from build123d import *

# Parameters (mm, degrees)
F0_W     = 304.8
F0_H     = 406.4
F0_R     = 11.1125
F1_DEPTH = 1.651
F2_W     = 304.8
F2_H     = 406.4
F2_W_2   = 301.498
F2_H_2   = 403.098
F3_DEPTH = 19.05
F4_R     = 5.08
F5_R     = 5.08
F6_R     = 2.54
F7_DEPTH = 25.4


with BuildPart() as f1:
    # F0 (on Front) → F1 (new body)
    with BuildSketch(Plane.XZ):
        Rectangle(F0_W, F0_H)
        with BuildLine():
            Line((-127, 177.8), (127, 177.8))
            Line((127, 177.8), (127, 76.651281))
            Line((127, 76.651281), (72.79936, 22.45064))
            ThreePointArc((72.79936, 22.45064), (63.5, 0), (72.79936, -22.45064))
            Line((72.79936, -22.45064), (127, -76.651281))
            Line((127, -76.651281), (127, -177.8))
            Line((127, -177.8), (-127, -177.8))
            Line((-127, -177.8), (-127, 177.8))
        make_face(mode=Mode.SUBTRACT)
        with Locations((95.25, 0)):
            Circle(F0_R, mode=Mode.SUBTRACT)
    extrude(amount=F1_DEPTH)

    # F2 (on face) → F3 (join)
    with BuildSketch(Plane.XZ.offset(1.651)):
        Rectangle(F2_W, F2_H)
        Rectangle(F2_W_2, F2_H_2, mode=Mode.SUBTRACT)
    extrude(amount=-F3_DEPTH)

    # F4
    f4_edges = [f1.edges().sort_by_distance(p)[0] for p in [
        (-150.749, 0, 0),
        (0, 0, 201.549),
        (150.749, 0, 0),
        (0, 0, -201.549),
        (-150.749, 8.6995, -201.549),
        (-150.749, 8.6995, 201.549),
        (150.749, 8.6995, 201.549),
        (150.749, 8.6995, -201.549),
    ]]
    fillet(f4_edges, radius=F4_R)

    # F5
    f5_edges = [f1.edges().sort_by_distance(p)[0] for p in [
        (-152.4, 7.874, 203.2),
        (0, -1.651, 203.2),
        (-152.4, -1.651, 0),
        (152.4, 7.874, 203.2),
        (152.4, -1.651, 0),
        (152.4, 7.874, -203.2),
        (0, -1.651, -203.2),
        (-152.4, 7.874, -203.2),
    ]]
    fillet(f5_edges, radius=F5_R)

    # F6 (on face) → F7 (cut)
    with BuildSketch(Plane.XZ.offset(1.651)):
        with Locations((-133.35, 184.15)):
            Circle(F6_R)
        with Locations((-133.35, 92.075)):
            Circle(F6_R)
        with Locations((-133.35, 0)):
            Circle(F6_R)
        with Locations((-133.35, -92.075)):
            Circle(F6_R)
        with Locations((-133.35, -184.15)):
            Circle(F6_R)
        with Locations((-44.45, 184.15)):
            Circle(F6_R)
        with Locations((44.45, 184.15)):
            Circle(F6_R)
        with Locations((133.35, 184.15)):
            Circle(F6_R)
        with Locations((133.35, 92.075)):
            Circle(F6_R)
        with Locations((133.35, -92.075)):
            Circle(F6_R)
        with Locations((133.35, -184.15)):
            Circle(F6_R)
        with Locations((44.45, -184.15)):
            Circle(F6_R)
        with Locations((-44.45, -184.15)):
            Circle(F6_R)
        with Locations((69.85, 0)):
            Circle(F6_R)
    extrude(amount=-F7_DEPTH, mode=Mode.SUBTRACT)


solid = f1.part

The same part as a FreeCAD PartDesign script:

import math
import FreeCAD as App
import Part
import Sketcher
from FreeCAD import Vector
Q = App.Units.Quantity


def edges_at(feature, points):
    """Names of the edges that pass closest to the given points."""
    edges = feature.Shape.Edges
    near = lambda p: min(range(len(edges)), key=lambda i: edges[i].distToShape(Part.Vertex(*p))[0])
    return sorted({f"Edge{near(p) + 1}" for p in points})

doc = App.newDocument("Part")
body = doc.addObject("PartDesign::Body", "Body")

# Sketch on XZ plane
sketch1 = doc.addObject("Sketcher::SketchObject", "Sketch")
body.addObject(sketch1)
sketch1.AttachmentSupport = (doc.XZ_Plane, [""])
sketch1.MapMode = "FlatFace"
sketch1.addGeometry([
    Part.LineSegment(Vector(-152, 203, 0), Vector(-152, -203, 0)),  # 0
    Part.LineSegment(Vector(-152, -203, 0), Vector(152, -203, 0)),  # 1
    Part.LineSegment(Vector(152, -203, 0), Vector(152, 203, 0)),  # 2
    Part.LineSegment(Vector(152, 203, 0), Vector(-152, 203, 0)),  # 3
    Part.LineSegment(Vector(-127, -178, 0), Vector(-127, 178, 0)),  # 4
    Part.LineSegment(Vector(-127, 178, 0), Vector(127, 178, 0)),  # 5
    Part.LineSegment(Vector(127, 178, 0), Vector(127, 77, 0)),  # 6
    Part.LineSegment(Vector(127, 77, 0), Vector(73, 22, 0)),  # 7
    Part.ArcOfCircle(Part.Circle(Vector(95, 0, 0), Vector(0, 0, 1), 32), math.radians(135), math.radians(225)),  # 8
    Part.LineSegment(Vector(73, -22, 0), Vector(127, -77, 0)),  # 9
    Part.LineSegment(Vector(127, -77, 0), Vector(127, -178, 0)),  # 10
    Part.LineSegment(Vector(127, -178, 0), Vector(-127, -178, 0)),  # 11
    Part.Circle(Vector(95, 0, 0), Vector(0, 0, 1), 11),  # 12
], False)
sketch1.addConstraint([
    Sketcher.Constraint("Coincident", 0, 2, 1, 1),
    Sketcher.Constraint("Coincident", 1, 2, 2, 1),
    Sketcher.Constraint("Coincident", 2, 2, 3, 1),
    Sketcher.Constraint("Coincident", 3, 2, 0, 1),
    Sketcher.Constraint("Coincident", 4, 2, 5, 1),
    Sketcher.Constraint("Coincident", 5, 2, 6, 1),
    Sketcher.Constraint("Coincident", 6, 2, 7, 1),
    Sketcher.Constraint("Tangent", 7, 2, 8, 1),
    Sketcher.Constraint("Tangent", 8, 2, 9, 1),
    Sketcher.Constraint("Coincident", 9, 2, 10, 1),
    Sketcher.Constraint("Coincident", 10, 2, 11, 1),
    Sketcher.Constraint("Coincident", 11, 2, 4, 1),
    Sketcher.Constraint("Vertical", 0),
    Sketcher.Constraint("Horizontal", 1),
    Sketcher.Constraint("Vertical", 2),
    Sketcher.Constraint("Horizontal", 3),
    Sketcher.Constraint("Vertical", 4),
    Sketcher.Constraint("Horizontal", 5),
    Sketcher.Constraint("Vertical", 6),
    Sketcher.Constraint("Vertical", 10),
    Sketcher.Constraint("Horizontal", 11),
    Sketcher.Constraint("Coincident", 12, 3, 8, 3),
    Sketcher.Constraint("Symmetric", 0, 2, 2, 2, -1, 1),
    Sketcher.Constraint("Symmetric", 4, 2, 10, 2, -1, 1),
    Sketcher.Constraint("Symmetric", 7, 2, 8, 2, -1),
    Sketcher.Constraint("Perpendicular", 7, 9),
    Sketcher.Constraint("Vertical", 6, 2, 9, 2),
    Sketcher.Constraint("DistanceX", 1, 1, 1, 2, Q("12 in")),
    Sketcher.Constraint("DistanceX", 5, 1, 5, 2, Q("10 in")),
    Sketcher.Constraint("DistanceY", 0, 2, 0, 1, Q("16 in")),
    Sketcher.Constraint("DistanceY", 4, 1, 4, 2, Q("14 in")),
    Sketcher.Constraint("Radius", 8, Q("1.2499999 in")),
    Sketcher.Constraint("Diameter", 12, Q("0.875 in")),
    Sketcher.Constraint("DistanceX", -1, 1, 8, 3, Q("3.7499999 in")),
])
pad1 = doc.addObject("PartDesign::Pad", "Pad")
body.addObject(pad1)
pad1.Profile = sketch1
pad1.Length = Q("0.065 in")

# Sketch on XZ plane
sketch2 = doc.addObject("Sketcher::SketchObject", "Sketch001")
body.addObject(sketch2)
sketch2.AttachmentSupport = (doc.XZ_Plane, [""])
sketch2.MapMode = "FlatFace"
sketch2.AttachmentOffset = App.Placement(Vector(0, 0, 0.065 * 25.4), App.Rotation())
sketch2.addGeometry([
    Part.LineSegment(Vector(-152, 203, 0), Vector(-152, -203, 0)),  # 0
    Part.LineSegment(Vector(-152, -203, 0), Vector(152, -203, 0)),  # 1
    Part.LineSegment(Vector(152, -203, 0), Vector(152, 203, 0)),  # 2
    Part.LineSegment(Vector(152, 203, 0), Vector(-152, 203, 0)),  # 3
    Part.LineSegment(Vector(151, -202, 0), Vector(-151, -202, 0)),  # 4
    Part.LineSegment(Vector(-151, -202, 0), Vector(-151, 202, 0)),  # 5
    Part.LineSegment(Vector(-151, 202, 0), Vector(151, 202, 0)),  # 6
    Part.LineSegment(Vector(151, 202, 0), Vector(151, -202, 0)),  # 7
], False)
sketch2.addConstraint([
    Sketcher.Constraint("Coincident", 0, 2, 1, 1),
    Sketcher.Constraint("Coincident", 1, 2, 2, 1),
    Sketcher.Constraint("Coincident", 2, 2, 3, 1),
    Sketcher.Constraint("Coincident", 3, 2, 0, 1),
    Sketcher.Constraint("Coincident", 4, 2, 5, 1),
    Sketcher.Constraint("Coincident", 5, 2, 6, 1),
    Sketcher.Constraint("Coincident", 6, 2, 7, 1),
    Sketcher.Constraint("Coincident", 7, 2, 4, 1),
    Sketcher.Constraint("Vertical", 0),
    Sketcher.Constraint("Horizontal", 1),
    Sketcher.Constraint("Vertical", 2),
    Sketcher.Constraint("Horizontal", 3),
    Sketcher.Constraint("Horizontal", 4),
    Sketcher.Constraint("Vertical", 5),
    Sketcher.Constraint("Horizontal", 6),
    Sketcher.Constraint("Vertical", 7),
    Sketcher.Constraint("Symmetric", 0, 2, 2, 2, -1, 1),
    Sketcher.Constraint("Symmetric", 4, 2, 6, 2, -1, 1),
    Sketcher.Constraint("DistanceX", 1, 1, 1, 2, Q("12 in")),
    Sketcher.Constraint("DistanceY", 0, 2, 0, 1, Q("16 in")),
    Sketcher.Constraint("DistanceX", 4, 2, 4, 1, Q("11.87 in")),
    Sketcher.Constraint("DistanceY", 5, 1, 5, 2, Q("15.87 in")),
])
pad2 = doc.addObject("PartDesign::Pad", "Pad001")
body.addObject(pad2)
pad2.Profile = sketch2
pad2.Length = Q("0.75 in")
pad2.Reversed = True
doc.recompute()

fillet = doc.addObject("PartDesign::Fillet", "Fillet")
body.addObject(fillet)
fillet.Base = (pad2, edges_at(pad2, [
    (-150.749, 0, 0),
    (0, 0, 201.549),
    (150.749, 0, 0),
    (0, 0, -201.549),
    (-150.749, 8.7, -201.549),
    (-150.749, 8.7, 201.549),
    (150.749, 8.7, 201.549),
    (150.749, 8.7, -201.549),
]))
fillet.Radius = Q("0.2 in")
doc.recompute()

fillet2 = doc.addObject("PartDesign::Fillet", "Fillet001")
body.addObject(fillet2)
fillet2.Base = (fillet, edges_at(fillet, [
    (-152.4, 7.874, 203.2),
    (0, -1.651, 203.2),
    (-152.4, -1.651, 0),
    (152.4, 7.874, 203.2),
    (152.4, -1.651, 0),
    (152.4, 7.874, -203.2),
    (0, -1.651, -203.2),
    (-152.4, 7.874, -203.2),
]))
fillet2.Radius = Q("0.2 in")

# Sketch on XZ plane
sketch3 = doc.addObject("Sketcher::SketchObject", "Sketch002")
body.addObject(sketch3)
sketch3.AttachmentSupport = (doc.XZ_Plane, [""])
sketch3.MapMode = "FlatFace"
sketch3.AttachmentOffset = App.Placement(Vector(0, 0, 0.065 * 25.4), App.Rotation())
sketch3.addGeometry([
    Part.Circle(Vector(-133.3, 184.2, 0), Vector(0, 0, 1), 2.5),  # 0
    Part.Circle(Vector(-133.3, 92.1, 0), Vector(0, 0, 1), 2.5),  # 1
    Part.Circle(Vector(-133.3, 0, 0), Vector(0, 0, 1), 2.5),  # 2
    Part.Circle(Vector(-133.3, -92.1, 0), Vector(0, 0, 1), 2.5),  # 3
    Part.Circle(Vector(-133.3, -184.2, 0), Vector(0, 0, 1), 2.5),  # 4
    Part.Circle(Vector(-44.5, 184.2, 0), Vector(0, 0, 1), 2.5),  # 5
    Part.Circle(Vector(44.5, 184.2, 0), Vector(0, 0, 1), 2.5),  # 6
    Part.Circle(Vector(133.3, 184.2, 0), Vector(0, 0, 1), 2.5),  # 7
    Part.Circle(Vector(133.3, 92.1, 0), Vector(0, 0, 1), 2.5),  # 8
    Part.Circle(Vector(133.3, -92.1, 0), Vector(0, 0, 1), 2.5),  # 9
    Part.Circle(Vector(133.3, -184.2, 0), Vector(0, 0, 1), 2.5),  # 10
    Part.Circle(Vector(44.5, -184.2, 0), Vector(0, 0, 1), 2.5),  # 11
    Part.Circle(Vector(-44.5, -184.2, 0), Vector(0, 0, 1), 2.5),  # 12
    Part.Circle(Vector(69.8, 0, 0), Vector(0, 0, 1), 2.5),  # 13
], False)
sketch3.addConstraint([
    Sketcher.Constraint("Equal", 0, 1),
    Sketcher.Constraint("Equal", 1, 2),
    Sketcher.Constraint("Equal", 2, 3),
    Sketcher.Constraint("Equal", 3, 4),
    Sketcher.Constraint("Equal", 4, 5),
    Sketcher.Constraint("Equal", 5, 6),
    Sketcher.Constraint("Equal", 6, 7),
    Sketcher.Constraint("Equal", 7, 8),
    Sketcher.Constraint("Equal", 8, 9),
    Sketcher.Constraint("Equal", 9, 10),
    Sketcher.Constraint("Equal", 10, 11),
    Sketcher.Constraint("Equal", 11, 12),
    Sketcher.Constraint("Equal", 12, 13),
    Sketcher.Constraint("Symmetric", 4, 3, 7, 3, -1, 1),
    Sketcher.Constraint("Symmetric", 3, 3, 8, 3, -1, 1),
    Sketcher.Constraint("Symmetric", 1, 3, 9, 3, -1, 1),
    Sketcher.Constraint("Symmetric", 0, 3, 10, 3, -1, 1),
    Sketcher.Constraint("Symmetric", 5, 3, 11, 3, -1, 1),
    Sketcher.Constraint("Symmetric", 6, 3, 12, 3, -1, 1),
    Sketcher.Constraint("Symmetric", 5, 3, 6, 3, -2),
    Sketcher.Constraint("Symmetric", 0, 3, 7, 3, -2),
    Sketcher.Constraint("Symmetric", 1, 3, 8, 3, -2),
    Sketcher.Constraint("PointOnObject", 2, 3, -1),
    Sketcher.Constraint("PointOnObject", 13, 3, -1),
    Sketcher.Constraint("Horizontal", 0, 3, 5, 3),
    Sketcher.Constraint("Vertical", 0, 3, 1, 3),
    Sketcher.Constraint("Vertical", 1, 3, 2, 3),
    Sketcher.Constraint("Diameter", 0, Q("0.2 in")),
    Sketcher.Constraint("DistanceX", 0, 3, 6, 3, Q("7 in")),
    Sketcher.Constraint("DistanceX", 6, 3, 13, 3, Q("1 in")),
    Sketcher.Constraint("DistanceY", 4, 3, 0, 3, Q("14.5 in")),
    Sketcher.Constraint("DistanceX", 0, 3, 5, 3, Q("3.5 in")),
    Sketcher.Constraint("DistanceY", 3, 3, 1, 3, Q("7.25 in")),
])
pocket1 = doc.addObject("PartDesign::Pocket", "Pocket")
body.addObject(pocket1)
pocket1.Profile = sketch3
pocket1.Length = Q("1 in")

doc.recompute()
